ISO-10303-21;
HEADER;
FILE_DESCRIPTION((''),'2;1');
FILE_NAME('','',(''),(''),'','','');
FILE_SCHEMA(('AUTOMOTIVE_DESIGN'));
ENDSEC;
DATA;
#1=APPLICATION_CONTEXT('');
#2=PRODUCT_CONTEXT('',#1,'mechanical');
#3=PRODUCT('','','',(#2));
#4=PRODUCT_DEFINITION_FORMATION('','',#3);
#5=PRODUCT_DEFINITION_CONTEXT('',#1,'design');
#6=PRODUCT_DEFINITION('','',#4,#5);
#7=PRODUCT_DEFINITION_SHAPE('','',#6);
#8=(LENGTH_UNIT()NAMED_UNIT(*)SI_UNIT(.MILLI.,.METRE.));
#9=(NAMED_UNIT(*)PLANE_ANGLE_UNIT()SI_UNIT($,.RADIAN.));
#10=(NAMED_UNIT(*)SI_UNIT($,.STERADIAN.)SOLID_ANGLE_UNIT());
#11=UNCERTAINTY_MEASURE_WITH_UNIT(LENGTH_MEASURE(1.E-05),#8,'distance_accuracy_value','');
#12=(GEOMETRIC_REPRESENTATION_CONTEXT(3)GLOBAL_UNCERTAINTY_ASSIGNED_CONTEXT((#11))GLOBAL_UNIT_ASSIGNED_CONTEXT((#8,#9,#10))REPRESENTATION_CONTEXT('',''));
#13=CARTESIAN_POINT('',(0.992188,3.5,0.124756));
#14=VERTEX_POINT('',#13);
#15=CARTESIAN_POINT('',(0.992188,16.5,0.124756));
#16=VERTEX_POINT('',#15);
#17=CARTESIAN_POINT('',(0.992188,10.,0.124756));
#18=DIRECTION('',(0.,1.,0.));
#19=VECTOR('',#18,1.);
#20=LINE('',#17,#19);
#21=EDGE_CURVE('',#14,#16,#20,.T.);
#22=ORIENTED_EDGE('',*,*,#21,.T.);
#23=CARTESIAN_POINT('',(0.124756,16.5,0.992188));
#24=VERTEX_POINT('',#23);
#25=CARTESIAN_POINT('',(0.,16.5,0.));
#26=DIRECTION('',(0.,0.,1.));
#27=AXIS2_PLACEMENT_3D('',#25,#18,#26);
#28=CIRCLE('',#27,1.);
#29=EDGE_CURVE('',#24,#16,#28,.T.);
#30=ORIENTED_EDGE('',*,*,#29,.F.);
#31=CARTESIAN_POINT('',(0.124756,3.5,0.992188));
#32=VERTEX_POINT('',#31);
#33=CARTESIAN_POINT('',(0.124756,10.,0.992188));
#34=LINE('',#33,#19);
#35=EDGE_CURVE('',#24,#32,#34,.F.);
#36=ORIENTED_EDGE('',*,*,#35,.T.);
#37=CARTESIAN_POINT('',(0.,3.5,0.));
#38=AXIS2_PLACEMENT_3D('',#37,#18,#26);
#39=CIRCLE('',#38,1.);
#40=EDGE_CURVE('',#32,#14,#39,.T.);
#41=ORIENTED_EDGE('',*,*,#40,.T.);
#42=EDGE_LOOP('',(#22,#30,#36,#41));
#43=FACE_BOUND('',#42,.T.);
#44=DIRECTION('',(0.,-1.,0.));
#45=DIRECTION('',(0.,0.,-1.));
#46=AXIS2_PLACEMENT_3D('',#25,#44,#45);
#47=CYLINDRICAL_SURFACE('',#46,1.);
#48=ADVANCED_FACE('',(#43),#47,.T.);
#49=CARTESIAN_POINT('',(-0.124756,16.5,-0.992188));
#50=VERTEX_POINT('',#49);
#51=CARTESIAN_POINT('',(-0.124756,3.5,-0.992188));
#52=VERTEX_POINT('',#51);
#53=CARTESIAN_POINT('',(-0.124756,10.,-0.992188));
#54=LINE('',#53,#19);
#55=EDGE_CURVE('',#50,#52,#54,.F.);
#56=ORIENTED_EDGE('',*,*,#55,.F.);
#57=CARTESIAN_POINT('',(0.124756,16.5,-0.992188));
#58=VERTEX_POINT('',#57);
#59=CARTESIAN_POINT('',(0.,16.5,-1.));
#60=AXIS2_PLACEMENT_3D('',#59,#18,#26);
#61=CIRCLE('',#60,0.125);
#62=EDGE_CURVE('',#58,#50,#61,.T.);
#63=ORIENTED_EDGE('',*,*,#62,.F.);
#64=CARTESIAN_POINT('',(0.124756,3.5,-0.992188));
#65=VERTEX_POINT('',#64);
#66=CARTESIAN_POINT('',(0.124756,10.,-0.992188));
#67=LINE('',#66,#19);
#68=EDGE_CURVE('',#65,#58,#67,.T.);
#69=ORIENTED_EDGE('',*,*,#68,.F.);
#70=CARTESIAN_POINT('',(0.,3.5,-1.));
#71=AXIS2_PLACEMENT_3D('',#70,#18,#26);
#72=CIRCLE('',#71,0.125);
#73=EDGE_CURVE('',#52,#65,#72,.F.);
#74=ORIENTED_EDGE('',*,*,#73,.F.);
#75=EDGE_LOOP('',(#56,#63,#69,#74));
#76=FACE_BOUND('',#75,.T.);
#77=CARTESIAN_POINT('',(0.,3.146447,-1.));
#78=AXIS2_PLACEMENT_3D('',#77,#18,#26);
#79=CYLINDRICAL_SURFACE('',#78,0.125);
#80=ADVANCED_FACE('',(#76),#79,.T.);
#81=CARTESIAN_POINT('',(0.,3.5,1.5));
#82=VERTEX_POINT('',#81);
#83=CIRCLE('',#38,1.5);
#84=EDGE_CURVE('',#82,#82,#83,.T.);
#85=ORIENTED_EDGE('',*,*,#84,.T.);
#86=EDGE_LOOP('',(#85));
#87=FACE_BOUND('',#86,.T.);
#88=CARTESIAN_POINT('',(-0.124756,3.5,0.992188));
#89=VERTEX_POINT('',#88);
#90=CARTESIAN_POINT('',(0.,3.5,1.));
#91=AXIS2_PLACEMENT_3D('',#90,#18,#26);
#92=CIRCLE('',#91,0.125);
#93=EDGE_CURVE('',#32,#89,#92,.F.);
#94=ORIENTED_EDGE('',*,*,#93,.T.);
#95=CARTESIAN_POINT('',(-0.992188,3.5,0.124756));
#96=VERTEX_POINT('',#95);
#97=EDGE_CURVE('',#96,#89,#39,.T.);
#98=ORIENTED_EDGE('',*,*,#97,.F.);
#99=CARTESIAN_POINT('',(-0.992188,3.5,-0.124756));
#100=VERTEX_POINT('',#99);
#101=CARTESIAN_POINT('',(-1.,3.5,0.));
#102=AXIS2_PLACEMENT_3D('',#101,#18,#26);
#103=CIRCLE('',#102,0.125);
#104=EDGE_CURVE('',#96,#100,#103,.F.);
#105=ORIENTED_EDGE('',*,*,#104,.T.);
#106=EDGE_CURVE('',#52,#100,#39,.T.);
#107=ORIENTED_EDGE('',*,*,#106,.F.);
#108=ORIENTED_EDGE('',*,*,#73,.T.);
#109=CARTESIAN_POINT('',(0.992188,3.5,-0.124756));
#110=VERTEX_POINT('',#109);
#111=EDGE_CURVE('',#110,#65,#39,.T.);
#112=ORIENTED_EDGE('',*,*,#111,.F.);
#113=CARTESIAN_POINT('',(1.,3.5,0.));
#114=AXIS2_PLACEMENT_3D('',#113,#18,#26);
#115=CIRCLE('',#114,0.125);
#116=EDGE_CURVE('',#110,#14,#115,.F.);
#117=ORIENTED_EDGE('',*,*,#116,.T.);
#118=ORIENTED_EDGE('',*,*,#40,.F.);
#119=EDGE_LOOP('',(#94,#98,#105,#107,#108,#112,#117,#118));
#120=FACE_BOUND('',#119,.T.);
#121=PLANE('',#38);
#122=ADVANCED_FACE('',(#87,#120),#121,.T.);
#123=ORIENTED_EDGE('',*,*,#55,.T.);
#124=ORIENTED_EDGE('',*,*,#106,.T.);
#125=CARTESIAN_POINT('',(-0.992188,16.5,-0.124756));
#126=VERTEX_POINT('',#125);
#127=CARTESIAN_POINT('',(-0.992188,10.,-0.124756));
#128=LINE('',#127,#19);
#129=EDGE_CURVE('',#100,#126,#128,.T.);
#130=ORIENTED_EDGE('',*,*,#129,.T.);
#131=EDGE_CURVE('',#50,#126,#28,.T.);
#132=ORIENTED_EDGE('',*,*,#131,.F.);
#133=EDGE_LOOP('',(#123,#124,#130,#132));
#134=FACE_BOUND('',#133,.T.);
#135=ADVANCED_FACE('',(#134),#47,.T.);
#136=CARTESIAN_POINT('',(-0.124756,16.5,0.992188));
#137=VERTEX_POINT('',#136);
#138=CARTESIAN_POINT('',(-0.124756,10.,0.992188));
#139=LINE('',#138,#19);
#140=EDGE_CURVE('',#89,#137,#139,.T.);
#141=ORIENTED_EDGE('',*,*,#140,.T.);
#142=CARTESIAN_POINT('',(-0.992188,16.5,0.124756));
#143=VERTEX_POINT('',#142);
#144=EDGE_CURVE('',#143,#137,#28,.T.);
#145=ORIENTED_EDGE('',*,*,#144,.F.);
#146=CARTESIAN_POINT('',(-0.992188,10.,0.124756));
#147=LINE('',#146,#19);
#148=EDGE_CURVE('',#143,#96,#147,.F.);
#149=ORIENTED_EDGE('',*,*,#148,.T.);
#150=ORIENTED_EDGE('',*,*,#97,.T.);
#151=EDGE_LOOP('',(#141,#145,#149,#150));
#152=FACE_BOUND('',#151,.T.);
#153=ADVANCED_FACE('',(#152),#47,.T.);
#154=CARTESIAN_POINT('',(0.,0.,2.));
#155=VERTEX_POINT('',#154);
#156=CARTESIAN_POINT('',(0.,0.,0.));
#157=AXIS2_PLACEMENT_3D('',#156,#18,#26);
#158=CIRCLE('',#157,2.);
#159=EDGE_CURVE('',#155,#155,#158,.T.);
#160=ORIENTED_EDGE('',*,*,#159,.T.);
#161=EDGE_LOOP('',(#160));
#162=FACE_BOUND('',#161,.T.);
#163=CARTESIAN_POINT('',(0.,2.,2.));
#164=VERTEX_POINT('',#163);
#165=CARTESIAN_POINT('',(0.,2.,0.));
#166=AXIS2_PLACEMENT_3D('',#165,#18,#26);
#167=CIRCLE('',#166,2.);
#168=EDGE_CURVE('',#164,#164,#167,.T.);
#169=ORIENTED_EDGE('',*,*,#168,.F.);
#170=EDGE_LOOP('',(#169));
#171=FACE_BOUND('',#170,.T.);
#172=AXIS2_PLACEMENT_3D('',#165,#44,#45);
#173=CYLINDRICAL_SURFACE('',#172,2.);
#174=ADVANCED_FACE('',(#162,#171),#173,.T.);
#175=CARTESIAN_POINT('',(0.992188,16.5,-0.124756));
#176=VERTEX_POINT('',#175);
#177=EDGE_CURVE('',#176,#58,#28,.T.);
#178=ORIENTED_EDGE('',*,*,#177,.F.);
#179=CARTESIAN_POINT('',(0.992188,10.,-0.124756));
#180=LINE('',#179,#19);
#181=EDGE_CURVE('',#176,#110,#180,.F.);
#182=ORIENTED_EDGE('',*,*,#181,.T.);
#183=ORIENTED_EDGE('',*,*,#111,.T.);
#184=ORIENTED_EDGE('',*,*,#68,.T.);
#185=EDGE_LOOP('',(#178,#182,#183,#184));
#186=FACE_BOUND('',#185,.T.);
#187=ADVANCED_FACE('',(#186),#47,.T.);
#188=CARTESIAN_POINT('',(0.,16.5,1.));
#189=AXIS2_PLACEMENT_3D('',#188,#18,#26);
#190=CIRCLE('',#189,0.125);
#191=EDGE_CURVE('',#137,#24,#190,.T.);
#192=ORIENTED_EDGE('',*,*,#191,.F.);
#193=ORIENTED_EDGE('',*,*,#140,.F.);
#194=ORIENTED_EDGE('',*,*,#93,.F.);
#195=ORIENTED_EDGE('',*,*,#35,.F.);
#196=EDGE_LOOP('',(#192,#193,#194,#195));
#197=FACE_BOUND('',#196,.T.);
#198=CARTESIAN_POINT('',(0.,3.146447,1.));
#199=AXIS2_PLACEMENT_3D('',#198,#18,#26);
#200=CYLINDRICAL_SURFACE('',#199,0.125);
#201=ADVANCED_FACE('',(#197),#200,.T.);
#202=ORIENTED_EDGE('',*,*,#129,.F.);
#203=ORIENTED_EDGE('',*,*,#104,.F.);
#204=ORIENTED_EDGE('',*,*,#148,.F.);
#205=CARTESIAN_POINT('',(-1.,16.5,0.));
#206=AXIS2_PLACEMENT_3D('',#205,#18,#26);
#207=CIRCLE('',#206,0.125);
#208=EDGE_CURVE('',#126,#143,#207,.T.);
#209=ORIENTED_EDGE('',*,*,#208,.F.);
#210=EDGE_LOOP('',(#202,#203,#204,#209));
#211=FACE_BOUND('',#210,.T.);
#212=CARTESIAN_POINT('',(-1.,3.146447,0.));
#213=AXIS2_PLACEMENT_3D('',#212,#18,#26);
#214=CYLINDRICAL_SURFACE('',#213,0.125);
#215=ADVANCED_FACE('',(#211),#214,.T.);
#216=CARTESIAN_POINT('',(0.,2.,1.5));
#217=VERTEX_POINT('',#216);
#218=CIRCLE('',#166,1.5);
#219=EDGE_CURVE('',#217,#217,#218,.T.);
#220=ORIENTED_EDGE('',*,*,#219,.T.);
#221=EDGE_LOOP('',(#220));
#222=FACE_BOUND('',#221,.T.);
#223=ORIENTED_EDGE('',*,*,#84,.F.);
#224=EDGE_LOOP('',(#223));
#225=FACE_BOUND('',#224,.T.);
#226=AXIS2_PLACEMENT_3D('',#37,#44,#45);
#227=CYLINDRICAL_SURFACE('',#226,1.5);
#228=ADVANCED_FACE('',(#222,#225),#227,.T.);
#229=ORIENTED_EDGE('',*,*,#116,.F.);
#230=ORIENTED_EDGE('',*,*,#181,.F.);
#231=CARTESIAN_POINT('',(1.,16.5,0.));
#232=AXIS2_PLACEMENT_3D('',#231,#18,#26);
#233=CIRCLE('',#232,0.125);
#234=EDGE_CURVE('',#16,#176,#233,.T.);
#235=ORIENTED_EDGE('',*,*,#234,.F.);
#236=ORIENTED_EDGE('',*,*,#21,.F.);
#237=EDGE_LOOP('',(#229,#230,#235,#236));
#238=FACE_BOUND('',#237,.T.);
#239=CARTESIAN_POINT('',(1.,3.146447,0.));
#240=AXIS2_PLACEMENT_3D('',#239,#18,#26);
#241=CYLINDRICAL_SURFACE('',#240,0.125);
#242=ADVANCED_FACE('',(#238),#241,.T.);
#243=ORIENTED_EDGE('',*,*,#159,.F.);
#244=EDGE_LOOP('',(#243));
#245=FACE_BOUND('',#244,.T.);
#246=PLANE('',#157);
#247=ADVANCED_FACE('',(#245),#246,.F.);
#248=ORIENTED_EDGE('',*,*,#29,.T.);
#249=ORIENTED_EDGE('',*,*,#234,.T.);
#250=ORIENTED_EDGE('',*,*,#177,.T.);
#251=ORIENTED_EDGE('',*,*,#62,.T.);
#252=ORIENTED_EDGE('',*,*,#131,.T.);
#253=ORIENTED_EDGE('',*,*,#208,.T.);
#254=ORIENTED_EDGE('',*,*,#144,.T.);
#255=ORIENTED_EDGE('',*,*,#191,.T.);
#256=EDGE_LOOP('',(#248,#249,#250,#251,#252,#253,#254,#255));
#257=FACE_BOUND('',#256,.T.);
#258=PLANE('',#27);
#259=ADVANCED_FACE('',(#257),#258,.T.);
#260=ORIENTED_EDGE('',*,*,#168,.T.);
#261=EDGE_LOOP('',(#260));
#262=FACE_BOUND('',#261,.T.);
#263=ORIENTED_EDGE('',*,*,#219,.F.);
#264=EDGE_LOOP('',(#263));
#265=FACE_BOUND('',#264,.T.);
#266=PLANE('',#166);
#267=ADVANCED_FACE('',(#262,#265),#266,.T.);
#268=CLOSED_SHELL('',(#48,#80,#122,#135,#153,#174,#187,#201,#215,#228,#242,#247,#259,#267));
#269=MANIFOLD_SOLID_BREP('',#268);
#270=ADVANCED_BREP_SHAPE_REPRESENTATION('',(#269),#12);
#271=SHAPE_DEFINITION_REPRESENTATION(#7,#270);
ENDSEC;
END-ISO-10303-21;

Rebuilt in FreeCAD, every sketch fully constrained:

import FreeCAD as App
import Part
import Sketcher

V = App.Vector
Q = App.Units.Quantity

doc = App.newDocument("Part")
body = doc.addObject("PartDesign::Body", "Body")

# Sketch on XZ plane
sketch1 = doc.addObject("Sketcher::SketchObject", "Sketch")
body.addObject(sketch1)
sketch1.AttachmentSupport = (doc.XZ_Plane, [""])
sketch1.MapMode = "FlatFace"
sketch1.addGeometry(Part.Circle(V(0, 0, 0), V(0, 0, 1), 2), False)
sketch1.addConstraint(Sketcher.Constraint("Coincident", 0, 3, -1, 1))
sketch1.addConstraint(Sketcher.Constraint("Diameter", 0, Q("4 mm")))
pad1 = doc.addObject("PartDesign::Pad", "Pad")
body.addObject(pad1)
pad1.Profile = sketch1
pad1.Length = 2
pad1.Reversed = True

# Sketch on XZ plane
sketch2 = doc.addObject("Sketcher::SketchObject", "Sketch001")
body.addObject(sketch2)
sketch2.AttachmentSupport = (doc.XZ_Plane, [""])
sketch2.MapMode = "FlatFace"
sketch2.AttachmentOffset = App.Placement(V(0, 0, -2), App.Rotation())
sketch2.addGeometry(Part.Circle(V(0, 0, 0), V(0, 0, 1), 1.5), False)
sketch2.addConstraint(Sketcher.Constraint("Coincident", 0, 3, -1, 1))
sketch2.addConstraint(Sketcher.Constraint("Diameter", 0, Q("3 mm")))
pad2 = doc.addObject("PartDesign::Pad", "Pad001")
body.addObject(pad2)
pad2.Profile = sketch2
pad2.Length = 1.5
pad2.Reversed = True

# Sketch on XZ plane
sketch3 = doc.addObject("Sketcher::SketchObject", "Sketch002")
body.addObject(sketch3)
sketch3.AttachmentSupport = (doc.XZ_Plane, [""])
sketch3.MapMode = "FlatFace"
sketch3.AttachmentOffset = App.Placement(V(0, 0, -3.5), App.Rotation())
sketch3.addGeometry(Part.Circle(V(0, 0, 0), V(0, 0, 1), 1), False)
sketch3.addConstraint(Sketcher.Constraint("Coincident", 0, 3, -1, 1))
sketch3.addConstraint(Sketcher.Constraint("Diameter", 0, Q("2 mm")))
pad3 = doc.addObject("PartDesign::Pad", "Pad002")
body.addObject(pad3)
pad3.Profile = sketch3
pad3.Length = 13
pad3.Reversed = True

# Sketch on XZ plane
sketch4 = doc.addObject("Sketcher::SketchObject", "Sketch003")
body.addObject(sketch4)
sketch4.AttachmentSupport = (doc.XZ_Plane, [""])
sketch4.MapMode = "FlatFace"
sketch4.AttachmentOffset = App.Placement(V(0, 0, -16.5), App.Rotation())
sketch4.addGeometry(Part.Circle(V(0, -1, 0), V(0, 0, 1), 0.12), False)
sketch4.addGeometry(Part.Circle(V(-1, 0, 0), V(0, 0, 1), 0.12), False)
sketch4.addGeometry(Part.Circle(V(0, 1, 0), V(0, 0, 1), 0.12), False)
sketch4.addGeometry(Part.Circle(V(1, 0, 0), V(0, 0, 1), 0.12), False)
sketch4.addConstraint(Sketcher.Constraint("Equal", 0, 1))
sketch4.addConstraint(Sketcher.Constraint("Equal", 1, 2))
sketch4.addConstraint(Sketcher.Constraint("Equal", 2, 3))
sketch4.addConstraint(Sketcher.Constraint("Symmetric", 0, 3, 2, 3, -1, 1))
sketch4.addConstraint(Sketcher.Constraint("Symmetric", 1, 3, 3, 3, -1, 1))
sketch4.addConstraint(Sketcher.Constraint("PointOnObject", 0, 3, -2))
sketch4.addConstraint(Sketcher.Constraint("PointOnObject", 1, 3, -1))
sketch4.addConstraint(Sketcher.Constraint("Diameter", 0, Q("0.25 mm")))
sketch4.addConstraint(Sketcher.Constraint("DistanceY", 0, 3, -1, 1, Q("1 mm")))
sketch4.addConstraint(Sketcher.Constraint("DistanceX", 1, 3, -1, 1, Q("1 mm")))
pad4 = doc.addObject("PartDesign::Pad", "Pad003")
body.addObject(pad4)
pad4.Profile = sketch4
pad4.Length = 13

doc.recompute()
